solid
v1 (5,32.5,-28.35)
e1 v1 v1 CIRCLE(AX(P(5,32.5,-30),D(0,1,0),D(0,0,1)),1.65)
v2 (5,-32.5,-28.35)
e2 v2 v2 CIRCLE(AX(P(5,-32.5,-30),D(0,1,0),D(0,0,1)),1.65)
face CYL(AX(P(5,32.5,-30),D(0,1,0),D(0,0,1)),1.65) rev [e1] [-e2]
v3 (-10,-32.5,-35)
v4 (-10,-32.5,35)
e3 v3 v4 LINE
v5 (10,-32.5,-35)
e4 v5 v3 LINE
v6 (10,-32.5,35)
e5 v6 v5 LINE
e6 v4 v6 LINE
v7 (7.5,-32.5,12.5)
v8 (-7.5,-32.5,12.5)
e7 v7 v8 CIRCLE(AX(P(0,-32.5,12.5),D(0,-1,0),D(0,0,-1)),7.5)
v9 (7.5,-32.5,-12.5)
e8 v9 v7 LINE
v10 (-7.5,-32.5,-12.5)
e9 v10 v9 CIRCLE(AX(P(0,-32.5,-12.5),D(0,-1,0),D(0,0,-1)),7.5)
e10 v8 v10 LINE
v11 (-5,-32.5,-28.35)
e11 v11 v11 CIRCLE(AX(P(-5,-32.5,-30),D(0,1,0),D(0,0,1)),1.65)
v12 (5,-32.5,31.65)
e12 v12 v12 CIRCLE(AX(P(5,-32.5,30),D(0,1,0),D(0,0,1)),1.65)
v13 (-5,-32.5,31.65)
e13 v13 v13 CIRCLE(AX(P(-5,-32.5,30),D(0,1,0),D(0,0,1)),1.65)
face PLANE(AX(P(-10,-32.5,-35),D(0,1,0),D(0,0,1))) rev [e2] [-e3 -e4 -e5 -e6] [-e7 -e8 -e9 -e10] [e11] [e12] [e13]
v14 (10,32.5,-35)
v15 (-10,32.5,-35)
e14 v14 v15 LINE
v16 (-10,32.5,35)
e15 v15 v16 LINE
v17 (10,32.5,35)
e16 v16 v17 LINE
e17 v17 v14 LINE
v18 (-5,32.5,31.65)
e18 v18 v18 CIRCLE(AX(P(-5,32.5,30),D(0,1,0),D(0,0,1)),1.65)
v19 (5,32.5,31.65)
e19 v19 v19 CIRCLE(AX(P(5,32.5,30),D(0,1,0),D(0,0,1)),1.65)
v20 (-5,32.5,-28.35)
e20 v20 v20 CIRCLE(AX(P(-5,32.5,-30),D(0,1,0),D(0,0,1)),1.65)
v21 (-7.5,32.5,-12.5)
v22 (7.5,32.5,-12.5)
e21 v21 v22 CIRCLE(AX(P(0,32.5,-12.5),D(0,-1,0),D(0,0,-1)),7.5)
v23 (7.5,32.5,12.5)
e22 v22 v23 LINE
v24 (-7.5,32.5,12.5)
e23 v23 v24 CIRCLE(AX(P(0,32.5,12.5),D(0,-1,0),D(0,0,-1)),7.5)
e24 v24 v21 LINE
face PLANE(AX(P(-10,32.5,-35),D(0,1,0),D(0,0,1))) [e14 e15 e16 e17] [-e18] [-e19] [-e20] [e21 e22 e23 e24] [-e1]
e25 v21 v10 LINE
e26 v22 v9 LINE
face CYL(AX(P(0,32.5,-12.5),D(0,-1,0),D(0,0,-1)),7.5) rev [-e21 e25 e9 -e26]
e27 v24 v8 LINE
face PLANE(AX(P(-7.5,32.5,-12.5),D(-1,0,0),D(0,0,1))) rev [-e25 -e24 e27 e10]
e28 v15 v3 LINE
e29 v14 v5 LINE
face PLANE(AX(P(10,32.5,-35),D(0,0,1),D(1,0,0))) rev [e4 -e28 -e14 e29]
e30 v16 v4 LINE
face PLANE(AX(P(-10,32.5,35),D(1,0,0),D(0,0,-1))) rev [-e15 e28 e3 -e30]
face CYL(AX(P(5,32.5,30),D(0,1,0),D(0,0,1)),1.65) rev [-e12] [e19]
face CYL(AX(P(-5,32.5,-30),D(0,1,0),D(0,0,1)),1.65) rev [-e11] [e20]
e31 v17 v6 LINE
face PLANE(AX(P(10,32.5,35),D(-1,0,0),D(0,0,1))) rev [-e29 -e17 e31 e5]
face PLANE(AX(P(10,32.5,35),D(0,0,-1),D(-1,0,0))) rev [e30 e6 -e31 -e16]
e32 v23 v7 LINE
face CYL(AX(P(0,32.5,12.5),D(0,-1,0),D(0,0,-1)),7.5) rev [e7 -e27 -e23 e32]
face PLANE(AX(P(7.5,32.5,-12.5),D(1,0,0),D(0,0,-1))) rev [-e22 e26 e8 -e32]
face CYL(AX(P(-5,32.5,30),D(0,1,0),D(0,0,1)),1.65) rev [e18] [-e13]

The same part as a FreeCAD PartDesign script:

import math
import FreeCAD as App
import Part
import Sketcher

V = App.Vector
Q = App.Units.Quantity


def add_polygon(sketch, points):
    """Adds a closed chain of lines whose ends are joined by coincident constraints."""
    first, n = sketch.GeometryCount, len(points)
    for a, b in zip(points, points[1:] + points[:1]):
        sketch.addGeometry(Part.LineSegment(App.Vector(*a, 0), App.Vector(*b, 0)), False)
    for i in range(n):
        sketch.addConstraint(Sketcher.Constraint("Coincident", first + i, 2, first + (i + 1) % n, 1))

doc = App.newDocument("Part")
body = doc.addObject("PartDesign::Body", "Body")

sketch1 = body.newObject("Sketcher::SketchObject", "Sketch")
sketch1.AttachmentSupport = (doc.getObject("XZ_Plane"), [""])
sketch1.MapMode = "FlatFace"
add_polygon(sketch1, [(-10, -35), (-10, 35), (10, 35), (10, -35)])
sketch1.addConstraint(Sketcher.Constraint("Vertical", 0))
sketch1.addConstraint(Sketcher.Constraint("Horizontal", 1))
sketch1.addConstraint(Sketcher.Constraint("Vertical", 2))
sketch1.addConstraint(Sketcher.Constraint("Horizontal", 3))
sketch1.addConstraint(Sketcher.Constraint("Symmetric", 0, 2, 2, 2, -1, 1))
sketch1.addConstraint(Sketcher.Constraint("DistanceX", 1, 1, 1, 2, Q("20 mm")))
sketch1.addConstraint(Sketcher.Constraint("DistanceY", 0, 1, 0, 2, Q("70 mm")))
pad1 = body.newObject("PartDesign::Pad", "Pad")
pad1.Profile = sketch1
pad1.Length = 65
pad1.Midplane = True

sketch2 = body.newObject("Sketcher::SketchObject", "Sketch001")
sketch2.AttachmentSupport = (doc.getObject("XZ_Plane"), [""])
sketch2.MapMode = "FlatFace"
sketch2.AttachmentOffset = App.Placement(V(0, 0, 32.5), App.Rotation())
sketch2.addGeometry(Part.LineSegment(V(-7.5, 12.5, 0), V(-7.5, -12.5, 0)), False)
sketch2.addGeometry(Part.ArcOfCircle(Part.Circle(V(0, -12.5, 0), V(0, 0, 1), 7.5), math.radians(180), math.radians(360)), False)
sketch2.addGeometry(Part.LineSegment(V(7.5, -12.5, 0), V(7.5, 12.5, 0)), False)
sketch2.addGeometry(Part.ArcOfCircle(Part.Circle(V(0, 12.5, 0), V(0, 0, 1), 7.5), math.radians(0), math.radians(180)), False)
sketch2.addConstraint(Sketcher.Constraint("Tangent", 0, 2, 1, 1))
sketch2.addConstraint(Sketcher.Constraint("Tangent", 1, 2, 2, 1))
sketch2.addConstraint(Sketcher.Constraint("Tangent", 2, 2, 3, 1))
sketch2.addConstraint(Sketcher.Constraint("Tangent", 3, 2, 0, 1))
sketch2.addConstraint(Sketcher.Constraint("Vertical", 0))
sketch2.addConstraint(Sketcher.Constraint("Vertical", 2))
sketch2.addConstraint(Sketcher.Constraint("Symmetric", 1, 3, 3, 3, -1, 1))
sketch2.addConstraint(Sketcher.Constraint("Radius", 1, Q("7.5 mm")))
sketch2.addConstraint(Sketcher.Constraint("DistanceY", 0, 2, 0, 1, Q("25 mm")))
pocket1 = body.newObject("PartDesign::Pocket", "Pocket")
pocket1.Profile = sketch2
pocket1.Type = "ThroughAll"

sketch3 = body.newObject("Sketcher::SketchObject", "Sketch002")
sketch3.AttachmentSupport = (doc.getObject("XZ_Plane"), [""])
sketch3.MapMode = "FlatFace"
sketch3.AttachmentOffset = App.Placement(V(0, 0, 32.5), App.Rotation())
sketch3.addGeometry(Part.Circle(V(5, 30, 0), V(0, 0, 1), 1.5), False)
sketch3.addGeometry(Part.Circle(V(-5, 30, 0), V(0, 0, 1), 1.5), False)
sketch3.addGeometry(Part.Circle(V(5, -30, 0), V(0, 0, 1), 1.5), False)
sketch3.addGeometry(Part.Circle(V(-5, -30, 0), V(0, 0, 1), 1.5), False)
sketch3.addConstraint(Sketcher.Constraint("Equal", 0, 1))
sketch3.addConstraint(Sketcher.Constraint("Equal", 1, 2))
sketch3.addConstraint(Sketcher.Constraint("Equal", 2, 3))
sketch3.addConstraint(Sketcher.Constraint("Symmetric", 1, 3, 2, 3, -1, 1))
sketch3.addConstraint(Sketcher.Constraint("Symmetric", 0, 3, 3, 3, -1, 1))
sketch3.addConstraint(Sketcher.Constraint("Symmetric", 0, 3, 1, 3, -2))
sketch3.addConstraint(Sketcher.Constraint("Diameter", 0, Q("3 mm")))
sketch3.addConstraint(Sketcher.Constraint("DistanceX", -1, 1, 0, 3, Q("5 mm")))
sketch3.addConstraint(Sketcher.Constraint("DistanceY", -1, 1, 0, 3, Q("30 mm")))
pocket2 = body.newObject("PartDesign::Pocket", "Pocket001")
pocket2.Profile = sketch3
pocket2.Length = 100

sketch4 = body.newObject("Sketcher::SketchObject", "Sketch003")
sketch4.AttachmentSupport = (doc.getObject("XZ_Plane"), [""])
sketch4.MapMode = "FlatFace"
sketch4.AttachmentOffset = App.Placement(V(0, 0, -32.5), App.Rotation())
sketch4.addGeometry(Part.Circle(V(-5, 30, 0), V(0, 0, 1), 1.65), False)
sketch4.addGeometry(Part.Circle(V(5, 30, 0), V(0, 0, 1), 1.65), False)
sketch4.addGeometry(Part.Circle(V(5, -30, 0), V(0, 0, 1), 1.65), False)
sketch4.addGeometry(Part.Circle(V(-5, -30, 0), V(0, 0, 1), 1.65), False)
sketch4.addConstraint(Sketcher.Constraint("Equal", 0, 1))
sketch4.addConstraint(Sketcher.Constraint("Equal", 1, 2))
sketch4.addConstraint(Sketcher.Constraint("Equal", 2, 3))
sketch4.addConstraint(Sketcher.Constraint("Symmetric", 0, 3, 2, 3, -1, 1))
sketch4.addConstraint(Sketcher.Constraint("Symmetric", 1, 3, 3, 3, -1, 1))
sketch4.addConstraint(Sketcher.Constraint("Symmetric", 0, 3, 1, 3, -2))
sketch4.addConstraint(Sketcher.Constraint("Diameter", 0, Q("3.3 mm")))
sketch4.addConstraint(Sketcher.Constraint("DistanceX", 0, 3, -1, 1, Q("5 mm")))
sketch4.addConstraint(Sketcher.Constraint("DistanceY", -1, 1, 0, 3, Q("30 mm")))
doc.recompute()
hole = body.newObject("PartDesign::Hole", "Hole")
hole.Profile = sketch4
hole.ThreadType = "None"
hole.Diameter = 3.3
hole.DepthType = "Dimension"
hole.Depth = 102.1
hole.DrillPoint = "Angled"
hole.DrillPointAngle = 118
hole.Reversed = True

doc.recompute()
